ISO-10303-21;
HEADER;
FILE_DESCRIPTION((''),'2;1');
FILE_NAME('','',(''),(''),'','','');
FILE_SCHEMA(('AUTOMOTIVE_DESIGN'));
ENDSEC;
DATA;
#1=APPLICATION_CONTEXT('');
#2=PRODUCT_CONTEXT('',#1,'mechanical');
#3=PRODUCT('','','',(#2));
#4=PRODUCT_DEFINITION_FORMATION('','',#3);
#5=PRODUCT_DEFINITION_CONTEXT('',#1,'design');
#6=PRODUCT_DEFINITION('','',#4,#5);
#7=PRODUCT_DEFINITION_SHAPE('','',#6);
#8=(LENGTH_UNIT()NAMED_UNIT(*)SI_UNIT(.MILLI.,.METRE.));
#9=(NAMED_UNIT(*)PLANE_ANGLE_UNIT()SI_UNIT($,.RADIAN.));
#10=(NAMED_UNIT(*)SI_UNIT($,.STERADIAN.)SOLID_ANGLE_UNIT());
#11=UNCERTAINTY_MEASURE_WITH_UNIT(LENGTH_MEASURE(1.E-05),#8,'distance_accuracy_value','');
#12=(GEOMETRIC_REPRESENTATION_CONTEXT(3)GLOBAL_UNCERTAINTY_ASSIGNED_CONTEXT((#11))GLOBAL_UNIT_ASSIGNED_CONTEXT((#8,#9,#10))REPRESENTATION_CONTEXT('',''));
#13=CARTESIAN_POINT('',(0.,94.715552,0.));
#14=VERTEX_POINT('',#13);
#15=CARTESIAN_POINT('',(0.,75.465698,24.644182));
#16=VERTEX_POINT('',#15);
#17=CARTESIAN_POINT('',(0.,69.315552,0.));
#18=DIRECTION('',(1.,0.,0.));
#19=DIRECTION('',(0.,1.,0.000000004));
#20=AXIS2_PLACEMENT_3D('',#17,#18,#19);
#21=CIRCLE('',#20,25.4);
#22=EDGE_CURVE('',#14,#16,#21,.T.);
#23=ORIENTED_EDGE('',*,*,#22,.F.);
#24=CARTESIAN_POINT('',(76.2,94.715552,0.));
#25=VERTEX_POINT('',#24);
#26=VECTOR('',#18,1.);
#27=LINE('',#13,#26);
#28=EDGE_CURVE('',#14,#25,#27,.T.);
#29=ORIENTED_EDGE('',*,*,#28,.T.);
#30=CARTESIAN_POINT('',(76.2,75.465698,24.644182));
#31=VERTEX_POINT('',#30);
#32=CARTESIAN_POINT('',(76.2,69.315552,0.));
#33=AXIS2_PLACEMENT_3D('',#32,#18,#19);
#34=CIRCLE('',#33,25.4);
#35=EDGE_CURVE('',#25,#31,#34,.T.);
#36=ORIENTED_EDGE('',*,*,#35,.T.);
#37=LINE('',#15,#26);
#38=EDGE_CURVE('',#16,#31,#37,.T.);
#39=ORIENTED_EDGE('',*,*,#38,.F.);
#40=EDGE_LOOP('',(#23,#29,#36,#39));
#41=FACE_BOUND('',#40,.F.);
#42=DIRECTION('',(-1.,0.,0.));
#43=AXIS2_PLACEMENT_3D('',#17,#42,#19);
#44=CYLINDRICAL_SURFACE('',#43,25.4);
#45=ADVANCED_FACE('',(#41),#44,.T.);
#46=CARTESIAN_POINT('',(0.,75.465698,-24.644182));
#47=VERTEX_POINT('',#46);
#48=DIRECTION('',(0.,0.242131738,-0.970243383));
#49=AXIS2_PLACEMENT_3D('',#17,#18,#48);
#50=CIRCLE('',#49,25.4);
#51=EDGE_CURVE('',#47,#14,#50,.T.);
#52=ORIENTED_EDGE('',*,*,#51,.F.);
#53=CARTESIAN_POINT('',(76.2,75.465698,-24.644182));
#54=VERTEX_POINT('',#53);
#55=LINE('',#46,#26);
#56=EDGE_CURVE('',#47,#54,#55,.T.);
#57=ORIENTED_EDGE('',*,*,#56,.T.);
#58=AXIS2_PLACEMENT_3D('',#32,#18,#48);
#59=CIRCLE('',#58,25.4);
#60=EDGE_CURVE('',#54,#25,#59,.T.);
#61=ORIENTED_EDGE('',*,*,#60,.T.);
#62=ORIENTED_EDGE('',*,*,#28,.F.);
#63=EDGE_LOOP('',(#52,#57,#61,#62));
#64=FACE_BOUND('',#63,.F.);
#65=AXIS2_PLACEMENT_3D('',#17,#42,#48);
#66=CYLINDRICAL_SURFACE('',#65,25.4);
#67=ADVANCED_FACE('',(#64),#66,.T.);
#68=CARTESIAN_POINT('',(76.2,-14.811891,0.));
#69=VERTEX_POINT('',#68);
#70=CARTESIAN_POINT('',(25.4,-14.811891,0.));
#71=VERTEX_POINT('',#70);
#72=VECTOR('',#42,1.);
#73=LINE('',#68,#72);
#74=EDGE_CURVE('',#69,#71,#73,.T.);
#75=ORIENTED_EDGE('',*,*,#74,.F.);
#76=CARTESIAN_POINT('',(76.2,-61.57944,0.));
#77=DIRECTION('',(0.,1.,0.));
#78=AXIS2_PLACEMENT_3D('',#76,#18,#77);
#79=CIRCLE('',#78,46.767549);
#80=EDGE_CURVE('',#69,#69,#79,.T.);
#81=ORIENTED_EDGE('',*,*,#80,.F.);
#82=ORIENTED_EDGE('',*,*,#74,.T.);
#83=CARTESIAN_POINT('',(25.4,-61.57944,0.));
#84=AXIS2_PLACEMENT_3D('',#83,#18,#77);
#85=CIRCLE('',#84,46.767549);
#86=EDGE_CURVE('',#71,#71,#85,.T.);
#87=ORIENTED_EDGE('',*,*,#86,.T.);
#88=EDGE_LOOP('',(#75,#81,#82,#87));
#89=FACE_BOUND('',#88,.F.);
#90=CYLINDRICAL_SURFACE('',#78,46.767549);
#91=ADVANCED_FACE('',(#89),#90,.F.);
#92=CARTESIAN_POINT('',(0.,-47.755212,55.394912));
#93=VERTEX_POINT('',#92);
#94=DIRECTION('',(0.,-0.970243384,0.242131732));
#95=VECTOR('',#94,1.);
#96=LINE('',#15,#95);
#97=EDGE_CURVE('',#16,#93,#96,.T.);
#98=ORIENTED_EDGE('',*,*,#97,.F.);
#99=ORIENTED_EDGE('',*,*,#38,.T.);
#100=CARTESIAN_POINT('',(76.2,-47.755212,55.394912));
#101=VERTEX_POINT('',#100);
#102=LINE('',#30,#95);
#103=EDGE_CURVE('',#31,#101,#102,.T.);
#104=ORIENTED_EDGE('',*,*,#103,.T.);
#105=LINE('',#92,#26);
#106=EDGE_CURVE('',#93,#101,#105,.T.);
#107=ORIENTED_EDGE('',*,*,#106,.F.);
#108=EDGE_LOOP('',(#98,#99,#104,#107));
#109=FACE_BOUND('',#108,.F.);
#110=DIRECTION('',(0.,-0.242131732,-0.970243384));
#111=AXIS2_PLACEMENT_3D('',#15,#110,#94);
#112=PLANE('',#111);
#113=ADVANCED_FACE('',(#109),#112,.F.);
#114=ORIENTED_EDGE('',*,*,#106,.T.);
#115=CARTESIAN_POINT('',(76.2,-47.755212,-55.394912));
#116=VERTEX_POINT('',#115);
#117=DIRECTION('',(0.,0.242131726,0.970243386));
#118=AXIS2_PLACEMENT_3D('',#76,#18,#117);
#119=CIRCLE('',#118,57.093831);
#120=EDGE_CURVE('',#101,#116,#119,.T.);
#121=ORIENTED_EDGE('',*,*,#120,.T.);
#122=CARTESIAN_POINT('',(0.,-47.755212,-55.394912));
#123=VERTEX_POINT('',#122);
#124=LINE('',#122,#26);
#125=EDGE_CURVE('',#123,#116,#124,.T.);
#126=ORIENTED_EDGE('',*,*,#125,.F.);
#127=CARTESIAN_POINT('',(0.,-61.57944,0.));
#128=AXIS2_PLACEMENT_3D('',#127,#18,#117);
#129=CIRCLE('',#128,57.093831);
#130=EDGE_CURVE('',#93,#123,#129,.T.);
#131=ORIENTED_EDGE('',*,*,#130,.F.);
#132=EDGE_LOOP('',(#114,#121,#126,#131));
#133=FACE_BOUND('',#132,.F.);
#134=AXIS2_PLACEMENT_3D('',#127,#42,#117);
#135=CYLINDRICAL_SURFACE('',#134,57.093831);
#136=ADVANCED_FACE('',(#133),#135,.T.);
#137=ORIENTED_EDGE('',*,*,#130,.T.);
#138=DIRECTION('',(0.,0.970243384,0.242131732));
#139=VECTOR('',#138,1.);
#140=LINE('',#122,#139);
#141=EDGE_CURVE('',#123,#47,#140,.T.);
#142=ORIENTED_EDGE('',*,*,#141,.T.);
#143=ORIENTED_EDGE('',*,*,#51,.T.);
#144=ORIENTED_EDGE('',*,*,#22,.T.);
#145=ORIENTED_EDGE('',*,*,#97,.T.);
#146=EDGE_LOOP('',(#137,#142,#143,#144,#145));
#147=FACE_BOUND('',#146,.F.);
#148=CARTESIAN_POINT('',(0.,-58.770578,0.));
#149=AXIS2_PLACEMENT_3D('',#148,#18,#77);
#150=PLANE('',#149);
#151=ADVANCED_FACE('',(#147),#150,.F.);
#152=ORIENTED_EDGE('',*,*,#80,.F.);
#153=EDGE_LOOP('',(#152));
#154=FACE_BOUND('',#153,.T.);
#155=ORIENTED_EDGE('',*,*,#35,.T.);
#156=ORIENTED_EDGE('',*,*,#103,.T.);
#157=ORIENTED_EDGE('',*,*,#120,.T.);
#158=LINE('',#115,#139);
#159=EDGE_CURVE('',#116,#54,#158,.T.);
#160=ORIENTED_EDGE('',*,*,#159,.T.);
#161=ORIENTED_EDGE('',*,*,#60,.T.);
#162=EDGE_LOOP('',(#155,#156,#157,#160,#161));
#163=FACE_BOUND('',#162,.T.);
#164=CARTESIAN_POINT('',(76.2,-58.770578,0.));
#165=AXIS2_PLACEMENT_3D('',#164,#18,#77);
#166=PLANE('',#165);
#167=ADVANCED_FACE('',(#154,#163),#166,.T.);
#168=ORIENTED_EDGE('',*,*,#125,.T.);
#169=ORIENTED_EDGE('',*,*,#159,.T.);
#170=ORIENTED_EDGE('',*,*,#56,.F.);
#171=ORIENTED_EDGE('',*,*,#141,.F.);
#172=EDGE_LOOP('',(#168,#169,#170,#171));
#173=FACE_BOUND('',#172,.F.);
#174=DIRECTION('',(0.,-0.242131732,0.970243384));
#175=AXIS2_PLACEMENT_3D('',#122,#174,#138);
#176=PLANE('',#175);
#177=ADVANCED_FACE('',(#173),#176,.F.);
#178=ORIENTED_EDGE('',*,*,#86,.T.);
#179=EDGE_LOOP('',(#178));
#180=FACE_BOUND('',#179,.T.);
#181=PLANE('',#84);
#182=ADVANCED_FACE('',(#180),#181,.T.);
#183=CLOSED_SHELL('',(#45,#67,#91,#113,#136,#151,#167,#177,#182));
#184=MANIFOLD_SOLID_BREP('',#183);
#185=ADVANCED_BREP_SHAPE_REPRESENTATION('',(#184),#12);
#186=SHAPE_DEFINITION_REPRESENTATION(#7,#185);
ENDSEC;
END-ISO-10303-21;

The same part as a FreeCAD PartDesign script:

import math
import FreeCAD as App
import Part
import Sketcher
Q = App.Units.Quantity

doc = App.newDocument("Part")
body = doc.addObject("PartDesign::Body", "Body")

sketch1 = body.newObject("Sketcher::SketchObject", "Sketch")
sketch1.AttachmentSupport = (doc.getObject("YZ_Plane"), [""])
sketch1.MapMode = "FlatFace"
sketch1.addGeometry([
    Part.ArcOfCircle(Part.Circle(App.Vector(-62, 0, 0), App.Vector(0, 0, 1), 57), math.radians(76), math.radians(284)),
    Part.LineSegment(App.Vector(-48, -55, 0), App.Vector(75, -25, 0)),
    Part.ArcOfCircle(Part.Circle(App.Vector(69, 0, 0), App.Vector(0, 0, 1), 25), math.radians(-76), math.radians(0)),
    Part.ArcOfCircle(Part.Circle(App.Vector(69, 0, 0), App.Vector(0, 0, 1), 25), math.radians(0), math.radians(76)),
    Part.LineSegment(App.Vector(75, 25, 0), App.Vector(-48, 55, 0)),
], False)
sketch1.addConstraint([
    Sketcher.Constraint("Tangent", 0, 2, 1, 1),
    Sketcher.Constraint("Tangent", 1, 2, 2, 1),
    Sketcher.Constraint("Tangent", 2, 2, 3, 1),
    Sketcher.Constraint("Tangent", 3, 2, 4, 1),
    Sketcher.Constraint("Tangent", 4, 2, 0, 1),
    Sketcher.Constraint("Equal", 2, 3),
    Sketcher.Constraint("Symmetric", 1, 2, 3, 2, -1),
    Sketcher.Constraint("PointOnObject", 2, 2, -1),
    Sketcher.Constraint("Radius", 2, Q("1 in")),
    Sketcher.Constraint("Distance", 1, Q("5 in")),
    Sketcher.Constraint("Radius", 0, Q("57.093831 mm")),
    Sketcher.Constraint("DistanceX", -1, 1, 1, 2, Q("75.465698 mm")),
])
pad1 = body.newObject("PartDesign::Pad", "Pad")
pad1.Profile = sketch1
pad1.Length = Q("3 in")

sketch2 = body.newObject("Sketcher::SketchObject", "Sketch001")
sketch2.AttachmentSupport = (doc.getObject("YZ_Plane"), [""])
sketch2.MapMode = "FlatFace"
sketch2.AttachmentOffset = App.Placement(App.Vector(0, 0, 3 * 25.4), App.Rotation())
sketch2.addGeometry(Part.Circle(App.Vector(-62, 0, 0), App.Vector(0, 0, 1), 47), False)
sketch2.addConstraint([
    Sketcher.Constraint("PointOnObject", 0, 3, -1),
    Sketcher.Constraint("Diameter", 0, Q("93.535098 mm")),
    Sketcher.Constraint("DistanceX", 0, 3, -1, 1, Q("61.57944 mm")),
])
pocket1 = body.newObject("PartDesign::Pocket", "Pocket")
pocket1.Profile = sketch2
pocket1.Length = Q("2 in")

doc.recompute()
